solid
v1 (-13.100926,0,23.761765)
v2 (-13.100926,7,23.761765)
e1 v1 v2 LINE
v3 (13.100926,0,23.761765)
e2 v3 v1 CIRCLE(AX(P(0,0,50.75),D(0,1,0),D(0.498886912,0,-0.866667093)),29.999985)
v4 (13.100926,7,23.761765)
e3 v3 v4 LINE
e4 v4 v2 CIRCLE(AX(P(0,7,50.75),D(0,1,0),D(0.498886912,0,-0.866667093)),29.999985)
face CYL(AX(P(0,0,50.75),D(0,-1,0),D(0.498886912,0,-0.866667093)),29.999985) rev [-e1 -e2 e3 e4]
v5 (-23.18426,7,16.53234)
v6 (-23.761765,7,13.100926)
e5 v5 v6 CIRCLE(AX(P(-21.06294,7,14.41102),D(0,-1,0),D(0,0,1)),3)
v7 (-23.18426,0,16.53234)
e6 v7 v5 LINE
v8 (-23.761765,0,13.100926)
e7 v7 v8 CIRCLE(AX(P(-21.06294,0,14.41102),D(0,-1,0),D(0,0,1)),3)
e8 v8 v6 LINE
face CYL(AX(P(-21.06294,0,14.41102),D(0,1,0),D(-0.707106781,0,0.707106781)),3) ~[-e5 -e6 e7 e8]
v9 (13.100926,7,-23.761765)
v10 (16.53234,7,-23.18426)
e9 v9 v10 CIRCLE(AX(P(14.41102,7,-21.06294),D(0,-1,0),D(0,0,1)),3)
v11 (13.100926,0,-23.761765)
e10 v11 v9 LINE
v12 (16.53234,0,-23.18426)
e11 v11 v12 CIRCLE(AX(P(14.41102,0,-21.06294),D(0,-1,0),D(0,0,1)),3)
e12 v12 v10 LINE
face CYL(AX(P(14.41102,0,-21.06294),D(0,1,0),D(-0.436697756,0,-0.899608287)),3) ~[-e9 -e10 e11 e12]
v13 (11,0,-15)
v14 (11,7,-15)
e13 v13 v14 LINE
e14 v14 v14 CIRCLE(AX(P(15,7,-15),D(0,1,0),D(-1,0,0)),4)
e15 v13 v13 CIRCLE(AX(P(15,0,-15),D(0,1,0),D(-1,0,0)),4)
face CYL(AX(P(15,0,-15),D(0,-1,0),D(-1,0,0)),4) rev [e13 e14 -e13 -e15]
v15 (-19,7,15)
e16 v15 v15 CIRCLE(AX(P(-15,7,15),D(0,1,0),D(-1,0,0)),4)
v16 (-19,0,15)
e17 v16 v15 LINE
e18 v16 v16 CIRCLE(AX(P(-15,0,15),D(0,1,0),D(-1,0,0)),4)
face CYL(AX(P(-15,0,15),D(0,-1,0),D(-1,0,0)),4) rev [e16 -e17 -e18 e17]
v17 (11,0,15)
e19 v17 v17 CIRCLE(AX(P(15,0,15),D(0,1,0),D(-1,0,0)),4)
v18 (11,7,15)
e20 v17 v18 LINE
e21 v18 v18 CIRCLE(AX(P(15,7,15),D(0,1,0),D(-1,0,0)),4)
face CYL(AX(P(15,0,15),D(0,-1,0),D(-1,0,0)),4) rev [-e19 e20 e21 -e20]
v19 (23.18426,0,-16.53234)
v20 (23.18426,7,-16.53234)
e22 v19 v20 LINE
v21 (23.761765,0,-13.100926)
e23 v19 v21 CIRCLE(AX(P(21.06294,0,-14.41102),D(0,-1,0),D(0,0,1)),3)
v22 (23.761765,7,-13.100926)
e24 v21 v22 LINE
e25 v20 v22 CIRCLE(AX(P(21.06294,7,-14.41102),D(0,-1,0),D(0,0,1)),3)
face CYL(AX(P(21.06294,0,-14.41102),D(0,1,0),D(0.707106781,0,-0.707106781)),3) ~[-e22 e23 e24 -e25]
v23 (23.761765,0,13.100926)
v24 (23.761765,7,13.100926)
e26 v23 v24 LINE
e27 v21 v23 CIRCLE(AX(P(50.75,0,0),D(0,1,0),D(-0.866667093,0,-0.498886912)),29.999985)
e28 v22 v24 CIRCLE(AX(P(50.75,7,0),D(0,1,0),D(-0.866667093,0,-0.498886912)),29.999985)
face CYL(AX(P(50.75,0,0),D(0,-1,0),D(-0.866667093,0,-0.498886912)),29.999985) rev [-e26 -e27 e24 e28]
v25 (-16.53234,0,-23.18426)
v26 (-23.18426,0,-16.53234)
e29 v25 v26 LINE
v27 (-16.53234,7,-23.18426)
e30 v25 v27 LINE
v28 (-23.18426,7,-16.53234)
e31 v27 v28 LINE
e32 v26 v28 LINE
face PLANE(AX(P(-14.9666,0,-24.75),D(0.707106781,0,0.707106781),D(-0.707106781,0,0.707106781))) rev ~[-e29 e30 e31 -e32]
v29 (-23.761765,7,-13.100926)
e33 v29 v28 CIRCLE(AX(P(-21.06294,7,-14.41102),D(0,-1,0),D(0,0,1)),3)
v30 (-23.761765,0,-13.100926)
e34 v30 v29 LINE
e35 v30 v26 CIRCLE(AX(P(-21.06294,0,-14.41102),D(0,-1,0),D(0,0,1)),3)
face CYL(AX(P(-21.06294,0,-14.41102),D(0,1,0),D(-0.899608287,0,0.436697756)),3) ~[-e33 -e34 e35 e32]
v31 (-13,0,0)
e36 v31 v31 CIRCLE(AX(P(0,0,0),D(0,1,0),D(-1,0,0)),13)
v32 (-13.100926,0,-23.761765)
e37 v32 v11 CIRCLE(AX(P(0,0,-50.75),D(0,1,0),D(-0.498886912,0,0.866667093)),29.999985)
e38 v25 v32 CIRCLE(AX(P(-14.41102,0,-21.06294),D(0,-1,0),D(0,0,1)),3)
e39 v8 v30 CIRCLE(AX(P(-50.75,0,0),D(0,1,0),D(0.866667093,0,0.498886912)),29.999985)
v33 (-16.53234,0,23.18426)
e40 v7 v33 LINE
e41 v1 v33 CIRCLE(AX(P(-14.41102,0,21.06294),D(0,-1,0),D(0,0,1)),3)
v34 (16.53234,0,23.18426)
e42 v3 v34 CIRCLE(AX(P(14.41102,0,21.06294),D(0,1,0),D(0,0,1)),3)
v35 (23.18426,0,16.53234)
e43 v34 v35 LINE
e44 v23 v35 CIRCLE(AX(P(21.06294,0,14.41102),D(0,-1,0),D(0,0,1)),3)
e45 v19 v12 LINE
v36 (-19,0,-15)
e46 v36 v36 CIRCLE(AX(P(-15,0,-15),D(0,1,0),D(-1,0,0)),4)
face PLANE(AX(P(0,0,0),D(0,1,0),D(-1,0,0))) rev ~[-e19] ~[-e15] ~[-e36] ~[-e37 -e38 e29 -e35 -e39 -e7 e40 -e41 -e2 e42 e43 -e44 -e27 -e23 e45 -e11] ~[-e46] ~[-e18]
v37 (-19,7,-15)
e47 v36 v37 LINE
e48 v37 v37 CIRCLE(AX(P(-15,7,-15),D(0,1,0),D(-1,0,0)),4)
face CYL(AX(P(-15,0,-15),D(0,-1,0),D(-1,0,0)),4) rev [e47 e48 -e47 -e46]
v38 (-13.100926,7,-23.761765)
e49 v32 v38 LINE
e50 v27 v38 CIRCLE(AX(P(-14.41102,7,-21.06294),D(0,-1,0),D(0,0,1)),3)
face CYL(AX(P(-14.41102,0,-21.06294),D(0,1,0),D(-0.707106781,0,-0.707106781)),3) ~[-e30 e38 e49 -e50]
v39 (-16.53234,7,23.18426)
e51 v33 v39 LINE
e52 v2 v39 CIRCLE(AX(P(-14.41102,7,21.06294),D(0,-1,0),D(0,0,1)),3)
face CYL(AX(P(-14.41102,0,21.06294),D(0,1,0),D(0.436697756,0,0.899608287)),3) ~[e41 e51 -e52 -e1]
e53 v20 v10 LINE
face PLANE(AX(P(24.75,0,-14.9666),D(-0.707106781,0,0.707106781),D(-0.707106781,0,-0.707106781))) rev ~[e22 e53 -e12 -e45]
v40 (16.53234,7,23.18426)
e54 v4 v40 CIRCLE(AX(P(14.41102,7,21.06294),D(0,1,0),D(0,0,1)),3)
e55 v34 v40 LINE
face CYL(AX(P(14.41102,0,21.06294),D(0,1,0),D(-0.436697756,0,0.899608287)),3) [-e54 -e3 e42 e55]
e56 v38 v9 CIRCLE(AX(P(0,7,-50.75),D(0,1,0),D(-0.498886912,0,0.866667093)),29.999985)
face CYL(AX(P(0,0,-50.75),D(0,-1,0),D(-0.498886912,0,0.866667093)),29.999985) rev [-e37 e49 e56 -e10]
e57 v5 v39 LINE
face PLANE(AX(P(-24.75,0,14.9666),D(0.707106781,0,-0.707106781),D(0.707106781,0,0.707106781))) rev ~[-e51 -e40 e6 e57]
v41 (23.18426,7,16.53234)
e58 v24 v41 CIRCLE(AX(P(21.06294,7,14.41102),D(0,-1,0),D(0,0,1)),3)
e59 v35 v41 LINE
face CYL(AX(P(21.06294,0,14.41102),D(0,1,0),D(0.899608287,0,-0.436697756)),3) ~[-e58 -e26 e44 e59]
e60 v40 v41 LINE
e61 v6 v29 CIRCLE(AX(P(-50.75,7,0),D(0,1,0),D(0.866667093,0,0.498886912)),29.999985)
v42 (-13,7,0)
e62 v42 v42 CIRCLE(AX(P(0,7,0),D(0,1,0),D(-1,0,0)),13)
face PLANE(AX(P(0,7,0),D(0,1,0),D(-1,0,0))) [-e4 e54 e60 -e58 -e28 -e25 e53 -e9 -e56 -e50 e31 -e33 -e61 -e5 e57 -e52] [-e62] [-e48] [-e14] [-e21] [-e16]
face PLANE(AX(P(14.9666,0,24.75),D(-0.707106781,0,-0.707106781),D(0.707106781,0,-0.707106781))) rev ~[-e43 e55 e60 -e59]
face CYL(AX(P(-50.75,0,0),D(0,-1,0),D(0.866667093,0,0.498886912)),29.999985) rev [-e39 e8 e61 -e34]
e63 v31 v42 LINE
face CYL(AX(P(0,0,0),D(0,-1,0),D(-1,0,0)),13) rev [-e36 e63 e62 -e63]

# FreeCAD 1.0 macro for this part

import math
import FreeCAD as App
import Part
import Sketcher

V = App.Vector


def edges_at(feature, points):
    """Names of the edges that pass closest to the given points."""
    edges = feature.Shape.Edges
    near = lambda p: min(range(len(edges)), key=lambda i: edges[i].distToShape(Part.Vertex(*p))[0])
    return sorted({f"Edge{near(p) + 1}" for p in points})

doc = App.newDocument("Part")
params = doc.addObject("Spreadsheet::Sheet", "Params")
for row, (alias, value) in enumerate([
    ("sketch1_diameter", "8 mm"),
    ("sketch1_diameter2", "26 mm"),
    ("sketch1_radius", "30 mm"),
    ("sketch1_height", "26 mm"),
    ("pad1_length", "7 mm"),
    ("fillet_radius", "3 mm"),
], start=1):
    params.set(f"A{row}", alias)
    params.set(f"B{row}", "=" + value)
    params.setAlias(f"B{row}", alias)

body = doc.addObject("PartDesign::Body", "Body")

# Sketch on XZ plane
sketch1 = body.newObject("Sketcher::SketchObject", "Sketch")
sketch1.AttachmentSupport = (doc.getObject("XZ_Plane"), [""])
sketch1.MapMode = "FlatFace"
sketch1.addGeometry([
    Part.ArcOfCircle(Part.Circle(V(0, 50.8, 0), V(0, 0, 1), 30), math.radians(-120), math.radians(-60)),  # 0
    Part.LineSegment(V(15, 24.8, 0), V(24.8, 15, 0)),  # 1
    Part.ArcOfCircle(Part.Circle(V(50.8, 0, 0), V(0, 0, 1), 30), math.radians(150), math.radians(210)),  # 2
    Part.LineSegment(V(24.8, -15, 0), V(15, -24.8, 0)),  # 3
    Part.ArcOfCircle(Part.Circle(V(0, -50.8, 0), V(0, 0, 1), 30), math.radians(60), math.radians(120)),  # 4
    Part.LineSegment(V(-15, -24.8, 0), V(-24.8, -15, 0)),  # 5
    Part.ArcOfCircle(Part.Circle(V(-50.8, 0, 0), V(0, 0, 1), 30), math.radians(-30), math.radians(30)),  # 6
    Part.LineSegment(V(-24.8, 15, 0), V(-15, 24.8, 0)),  # 7
    Part.Circle(V(15, -15, 0), V(0, 0, 1), 4),  # 8
    Part.Circle(V(-15, -15, 0), V(0, 0, 1), 4),  # 9
    Part.Circle(V(15, 15, 0), V(0, 0, 1), 4),  # 10
    Part.Circle(V(0, 0, 0), V(0, 0, 1), 13),  # 11
    Part.Circle(V(-15, 15, 0), V(0, 0, 1), 4),  # 12
], False)
sketch1.addConstraint([
    Sketcher.Constraint("Coincident", 0, 2, 1, 1),
    Sketcher.Constraint("Coincident", 1, 2, 2, 1),
    Sketcher.Constraint("Coincident", 2, 2, 3, 1),
    Sketcher.Constraint("Coincident", 3, 2, 4, 1),
    Sketcher.Constraint("Coincident", 4, 2, 5, 1),
    Sketcher.Constraint("Coincident", 5, 2, 6, 1),
    Sketcher.Constraint("Coincident", 6, 2, 7, 1),
    Sketcher.Constraint("Coincident", 7, 2, 0, 1),
    Sketcher.Constraint("Coincident", 11, 3, -1, 1),
    Sketcher.Constraint("Equal", 0, 2),
    Sketcher.Constraint("Equal", 2, 4),
    Sketcher.Constraint("Equal", 4, 6),
    Sketcher.Constraint("Equal", 8, 9),
    Sketcher.Constraint("Equal", 9, 10),
    Sketcher.Constraint("Equal", 10, 12),
    Sketcher.Constraint("Symmetric", 0, 3, 4, 3, -1, 1),
    Sketcher.Constraint("Symmetric", 2, 3, 6, 3, -1, 1),
    Sketcher.Constraint("Symmetric", 9, 3, 10, 3, -1, 1),
    Sketcher.Constraint("Symmetric", 8, 3, 12, 3, -1, 1),
    Sketcher.Constraint("Symmetric", 8, 3, 9, 3, -2),
    Sketcher.Constraint("Symmetric", 3, 2, 4, 2, -2),
    Sketcher.Constraint("Symmetric", 2, 2, 5, 2, -2),
    Sketcher.Constraint("Perpendicular", 1, 3),
    Sketcher.Constraint("Perpendicular", 3, 5),
    Sketcher.Constraint("Perpendicular", 5, 7),
    Sketcher.Constraint("Horizontal", 1, 2, 6, 2),
    Sketcher.Constraint("Vertical", 1, 2, 2, 2),
    Sketcher.Constraint("Diameter", 8, 8.0),
    Sketcher.Constraint("Diameter", 11, 26.0),
    Sketcher.Constraint("Radius", 0, 30.0),
    Sketcher.Constraint("DistanceX", -1, 1, 8, 3, 15.0),
    Sketcher.Constraint("DistanceY", 8, 3, -1, 1, 15.0),
    Sketcher.Constraint("DistanceY", 0, 2, 0, 3, 26.0),
    Sketcher.Constraint("DistanceX", 1, 2, 2, 3, 26.0),
    Sketcher.Constraint("DistanceY", 4, 3, 0, 3, 101.5),
])
sketch1.setExpression("Constraints[27]", "Params.sketch1_diameter")
sketch1.setExpression("Constraints[28]", "Params.sketch1_diameter2")
sketch1.setExpression("Constraints[29]", "Params.sketch1_radius")
sketch1.setExpression("Constraints[32]", "Params.sketch1_height")
pad1 = body.newObject("PartDesign::Pad", "Pad")
pad1.Profile = sketch1
pad1.setExpression("Length", "Params.pad1_length")
pad1.Reversed = True
doc.recompute()

fillet = body.newObject("PartDesign::Fillet", "Fillet")
fillet.Base = (pad1, edges_at(pad1, [
    (24.75, 3.5, 14.967),
    (14.967, 3.5, 24.75),
    (-14.967, 3.5, 24.75),
    (-24.75, 3.5, 14.967),
    (-24.75, 3.5, -14.967),
    (-14.967, 3.5, -24.75),
    (14.967, 3.5, -24.75),
    (24.75, 3.5, -14.967),
]))
fillet.setExpression("Radius", "Params.fillet_radius")

doc.recompute()
